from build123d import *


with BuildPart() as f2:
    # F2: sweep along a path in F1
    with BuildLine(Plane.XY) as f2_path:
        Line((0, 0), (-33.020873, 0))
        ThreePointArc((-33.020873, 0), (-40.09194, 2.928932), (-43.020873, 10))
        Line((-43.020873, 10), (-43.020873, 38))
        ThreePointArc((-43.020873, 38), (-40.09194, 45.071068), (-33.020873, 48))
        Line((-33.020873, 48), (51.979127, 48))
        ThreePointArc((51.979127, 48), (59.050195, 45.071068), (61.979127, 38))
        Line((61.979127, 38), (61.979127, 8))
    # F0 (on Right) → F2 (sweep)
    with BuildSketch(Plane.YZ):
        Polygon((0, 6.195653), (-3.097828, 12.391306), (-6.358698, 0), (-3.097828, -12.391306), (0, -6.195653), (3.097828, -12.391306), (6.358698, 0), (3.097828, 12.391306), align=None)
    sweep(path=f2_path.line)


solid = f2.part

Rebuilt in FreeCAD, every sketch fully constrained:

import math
import FreeCAD as App
import Part
import Sketcher

V = App.Vector

doc = App.newDocument("Part")
body = doc.addObject("PartDesign::Body", "Body")

sketch1 = doc.addObject("Sketcher::SketchObject", "Sketch")
body.addObject(sketch1)
sketch1.AttachmentSupport = (doc.YZ_Plane, [""])
sketch1.MapMode = "FlatFace"
sketch1.addGeometry([
    Part.LineSegment(V(0, 6.195653, 0), V(-3.097828, 12.391306, 0)),
    Part.LineSegment(V(-3.097828, 12.391306, 0), V(-6.358698, 0, 0)),
    Part.LineSegment(V(-6.358698, 0, 0), V(-3.097828, -12.391306, 0)),
    Part.LineSegment(V(-3.097828, -12.391306, 0), V(0, -6.195653, 0)),
    Part.LineSegment(V(0, -6.195653, 0), V(3.097828, -12.391306, 0)),
    Part.LineSegment(V(3.097828, -12.391306, 0), V(6.358698, 0, 0)),
    Part.LineSegment(V(6.358698, 0, 0), V(3.097828, 12.391306, 0)),
    Part.LineSegment(V(3.097828, 12.391306, 0), V(0, 6.195653, 0)),
], False)
sketch1.addConstraint([
    Sketcher.Constraint("Coincident", 0, 2, 1, 1),
    Sketcher.Constraint("Coincident", 1, 2, 2, 1),
    Sketcher.Constraint("Coincident", 2, 2, 3, 1),
    Sketcher.Constraint("Coincident", 3, 2, 4, 1),
    Sketcher.Constraint("Coincident", 4, 2, 5, 1),
    Sketcher.Constraint("Coincident", 5, 2, 6, 1),
    Sketcher.Constraint("Coincident", 6, 2, 7, 1),
    Sketcher.Constraint("Coincident", 7, 2, 0, 1),
    Sketcher.Constraint("Symmetric", 0, 2, 4, 2, -1, 1),
    Sketcher.Constraint("Symmetric", 1, 2, 5, 2, -1, 1),
    Sketcher.Constraint("Symmetric", 2, 2, 6, 2, -1, 1),
    Sketcher.Constraint("Symmetric", 3, 2, 7, 2, -1, 1),
    Sketcher.Constraint("Symmetric", 2, 2, 4, 2, -2),
    Sketcher.Constraint("PointOnObject", 1, 2, -1),
    Sketcher.Constraint("PointOnObject", 3, 2, -2),
    Sketcher.Constraint("DistanceX", 1, 2, -1, 1, 6.358698),
    Sketcher.Constraint("Distance", 0, 6.926951),
    Sketcher.Constraint("DistanceX", 1, 2, 0, 2, 3.26087),
    Sketcher.Constraint("DistanceY", 3, 2, 0, 2, 18.586959),
])

sketch2 = doc.addObject("Sketcher::SketchObject", "Sketch001")
body.addObject(sketch2)
sketch2.AttachmentSupport = (doc.XY_Plane, [""])
sketch2.MapMode = "FlatFace"
sketch2.addGeometry([
    Part.LineSegment(V(0, 0, 0), V(-33.020873, 0, 0)),
    Part.ArcOfCircle(Part.Circle(V(-33.020872, 10.000001, 0), V(0, 0, 1), 10.000001), math.radians(-179.999994), math.radians(-90.000006)),
    Part.LineSegment(V(-43.020873, 10, 0), V(-43.020873, 38, 0)),
    Part.ArcOfCircle(Part.Circle(V(-33.020872, 37.999999, 0), V(0, 0, 1), 10.000001), math.radians(90.000006), math.radians(179.999994)),
    Part.LineSegment(V(-33.020873, 48, 0), V(51.979127, 48, 0)),
    Part.ArcOfCircle(Part.Circle(V(51.979128, 38.000001, 0), V(0, 0, 1), 9.999999), math.radians(-0.000004), math.radians(90.000004)),
    Part.LineSegment(V(61.979127, 38, 0), V(61.979127, 8, 0)),
], False)
sketch2.addConstraint([
    Sketcher.Constraint("Tangent", 0, 2, 1, 2),
    Sketcher.Constraint("Tangent", 1, 1, 2, 1),
    Sketcher.Constraint("Tangent", 2, 2, 3, 2),
    Sketcher.Constraint("Tangent", 3, 1, 4, 1),
    Sketcher.Constraint("Tangent", 4, 2, 5, 2),
    Sketcher.Constraint("Tangent", 5, 1, 6, 1),
    Sketcher.Constraint("Horizontal", 0),
    Sketcher.Constraint("Vertical", 2),
    Sketcher.Constraint("Horizontal", 4),
    Sketcher.Constraint("Vertical", 6),
    Sketcher.Constraint("Coincident", 0, 1, -1, 1),
    Sketcher.Constraint("Equal", 1, 3),
    Sketcher.Constraint("Equal", 3, 5),
    Sketcher.Constraint("Radius", 1, 10.000001),
    Sketcher.Constraint("DistanceX", 4, 1, 4, 2, 85.0),
    Sketcher.Constraint("DistanceY", 2, 1, 2, 2, 28.0),
    Sketcher.Constraint("DistanceY", 6, 2, 6, 1, 30.0),
    Sketcher.Constraint("DistanceX", 0, 2, 0, 1, 33.020873),
])
doc.recompute()

additivepipe = doc.addObject("PartDesign::AdditivePipe", "AdditivePipe")
body.addObject(additivepipe)
additivepipe.Profile = sketch1
additivepipe.Spine = (sketch2, ["Edge1", "Edge2", "Edge3", "Edge4", "Edge5", "Edge6", "Edge7"])

doc.recompute()
